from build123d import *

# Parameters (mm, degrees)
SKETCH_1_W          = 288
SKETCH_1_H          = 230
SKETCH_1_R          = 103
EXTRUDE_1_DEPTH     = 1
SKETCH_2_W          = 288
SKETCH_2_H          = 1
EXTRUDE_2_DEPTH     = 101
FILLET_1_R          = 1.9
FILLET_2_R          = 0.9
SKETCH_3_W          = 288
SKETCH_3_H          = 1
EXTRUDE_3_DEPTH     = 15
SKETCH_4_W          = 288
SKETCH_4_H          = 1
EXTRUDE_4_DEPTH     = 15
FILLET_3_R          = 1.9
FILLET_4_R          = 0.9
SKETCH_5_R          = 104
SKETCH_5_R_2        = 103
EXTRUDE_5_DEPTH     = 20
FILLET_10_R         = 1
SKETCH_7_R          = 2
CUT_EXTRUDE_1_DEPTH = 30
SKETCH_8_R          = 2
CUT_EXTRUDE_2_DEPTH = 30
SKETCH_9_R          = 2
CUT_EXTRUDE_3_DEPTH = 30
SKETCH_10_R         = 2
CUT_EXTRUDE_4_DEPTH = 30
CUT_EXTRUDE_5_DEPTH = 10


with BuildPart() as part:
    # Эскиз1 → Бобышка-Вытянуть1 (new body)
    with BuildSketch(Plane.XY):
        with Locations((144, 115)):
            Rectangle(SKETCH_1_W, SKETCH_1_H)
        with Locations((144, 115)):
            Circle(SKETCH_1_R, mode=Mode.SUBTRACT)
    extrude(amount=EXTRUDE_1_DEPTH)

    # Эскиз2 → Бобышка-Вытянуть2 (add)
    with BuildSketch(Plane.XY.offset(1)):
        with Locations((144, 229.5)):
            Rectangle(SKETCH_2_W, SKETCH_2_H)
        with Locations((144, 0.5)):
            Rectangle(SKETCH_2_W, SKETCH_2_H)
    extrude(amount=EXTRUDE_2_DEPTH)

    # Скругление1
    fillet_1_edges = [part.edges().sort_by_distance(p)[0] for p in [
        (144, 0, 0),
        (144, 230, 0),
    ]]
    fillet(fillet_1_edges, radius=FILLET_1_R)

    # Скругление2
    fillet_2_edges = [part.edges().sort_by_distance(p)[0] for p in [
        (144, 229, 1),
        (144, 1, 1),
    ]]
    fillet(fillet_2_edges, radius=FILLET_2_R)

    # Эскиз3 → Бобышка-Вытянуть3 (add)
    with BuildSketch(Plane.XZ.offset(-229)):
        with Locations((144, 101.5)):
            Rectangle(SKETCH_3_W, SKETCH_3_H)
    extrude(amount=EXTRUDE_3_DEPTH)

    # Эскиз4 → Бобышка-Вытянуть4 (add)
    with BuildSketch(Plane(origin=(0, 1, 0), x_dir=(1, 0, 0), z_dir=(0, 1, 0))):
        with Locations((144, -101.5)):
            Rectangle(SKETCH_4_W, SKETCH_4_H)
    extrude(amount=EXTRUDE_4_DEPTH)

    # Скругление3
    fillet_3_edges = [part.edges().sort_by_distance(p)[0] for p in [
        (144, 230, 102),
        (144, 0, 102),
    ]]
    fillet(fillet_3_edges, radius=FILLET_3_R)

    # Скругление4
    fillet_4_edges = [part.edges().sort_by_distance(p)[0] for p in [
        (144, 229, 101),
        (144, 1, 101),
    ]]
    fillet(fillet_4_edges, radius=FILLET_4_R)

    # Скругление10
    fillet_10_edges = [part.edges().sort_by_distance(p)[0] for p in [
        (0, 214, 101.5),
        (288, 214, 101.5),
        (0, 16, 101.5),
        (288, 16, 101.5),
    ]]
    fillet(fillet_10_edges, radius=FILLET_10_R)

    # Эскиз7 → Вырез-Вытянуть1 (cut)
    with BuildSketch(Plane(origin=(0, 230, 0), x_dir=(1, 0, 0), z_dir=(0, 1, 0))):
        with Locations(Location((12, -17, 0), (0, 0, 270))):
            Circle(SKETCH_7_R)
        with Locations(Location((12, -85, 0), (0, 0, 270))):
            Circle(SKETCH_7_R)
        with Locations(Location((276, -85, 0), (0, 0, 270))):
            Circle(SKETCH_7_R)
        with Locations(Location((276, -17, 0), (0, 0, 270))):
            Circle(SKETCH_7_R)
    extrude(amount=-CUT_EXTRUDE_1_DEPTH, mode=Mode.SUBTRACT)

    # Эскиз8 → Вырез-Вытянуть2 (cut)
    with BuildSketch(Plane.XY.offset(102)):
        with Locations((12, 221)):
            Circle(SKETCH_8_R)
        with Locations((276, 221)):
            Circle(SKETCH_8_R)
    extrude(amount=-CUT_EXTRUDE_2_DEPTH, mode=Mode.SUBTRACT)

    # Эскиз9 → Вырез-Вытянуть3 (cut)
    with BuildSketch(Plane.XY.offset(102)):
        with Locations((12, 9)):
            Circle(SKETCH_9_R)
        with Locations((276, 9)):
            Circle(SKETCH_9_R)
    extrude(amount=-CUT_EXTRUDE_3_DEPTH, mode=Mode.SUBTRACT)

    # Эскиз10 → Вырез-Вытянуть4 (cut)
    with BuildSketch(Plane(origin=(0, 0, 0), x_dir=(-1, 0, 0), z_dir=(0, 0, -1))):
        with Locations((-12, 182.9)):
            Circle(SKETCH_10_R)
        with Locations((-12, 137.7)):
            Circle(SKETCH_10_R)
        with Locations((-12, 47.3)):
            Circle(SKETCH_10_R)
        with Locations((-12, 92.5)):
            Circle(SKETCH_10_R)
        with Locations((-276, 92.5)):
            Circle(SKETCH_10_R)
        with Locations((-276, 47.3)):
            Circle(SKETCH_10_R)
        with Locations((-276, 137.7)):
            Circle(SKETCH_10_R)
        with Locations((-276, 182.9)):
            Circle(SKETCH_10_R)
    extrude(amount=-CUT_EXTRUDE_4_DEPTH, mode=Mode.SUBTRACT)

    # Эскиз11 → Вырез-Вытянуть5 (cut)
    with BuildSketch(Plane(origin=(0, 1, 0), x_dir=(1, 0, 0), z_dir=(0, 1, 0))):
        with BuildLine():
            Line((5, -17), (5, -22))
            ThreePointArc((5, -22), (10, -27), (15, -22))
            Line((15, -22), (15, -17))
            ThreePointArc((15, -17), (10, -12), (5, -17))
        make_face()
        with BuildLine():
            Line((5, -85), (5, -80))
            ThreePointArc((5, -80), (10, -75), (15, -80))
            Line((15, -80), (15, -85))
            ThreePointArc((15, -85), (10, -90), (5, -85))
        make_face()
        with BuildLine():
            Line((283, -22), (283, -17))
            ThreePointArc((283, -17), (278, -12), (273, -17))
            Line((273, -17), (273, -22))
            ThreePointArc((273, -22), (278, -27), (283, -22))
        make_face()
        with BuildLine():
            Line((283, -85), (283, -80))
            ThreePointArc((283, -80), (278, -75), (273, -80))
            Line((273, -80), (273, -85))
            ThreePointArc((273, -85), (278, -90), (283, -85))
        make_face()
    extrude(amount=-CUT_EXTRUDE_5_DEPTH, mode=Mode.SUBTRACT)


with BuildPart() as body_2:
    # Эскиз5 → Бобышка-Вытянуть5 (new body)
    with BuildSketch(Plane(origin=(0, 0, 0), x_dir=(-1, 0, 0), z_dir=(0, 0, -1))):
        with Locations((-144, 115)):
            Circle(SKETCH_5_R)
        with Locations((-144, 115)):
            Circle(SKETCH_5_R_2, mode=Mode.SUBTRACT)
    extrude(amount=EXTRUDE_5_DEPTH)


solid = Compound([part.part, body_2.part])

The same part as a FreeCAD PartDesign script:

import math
import FreeCAD as App
import Part
import Sketcher
from FreeCAD import Vector
Q = App.Units.Quantity


def edges_at(feature, points):
    """Names of the edges that pass closest to the given points."""
    edges = feature.Shape.Edges
    near = lambda p: min(range(len(edges)), key=lambda i: edges[i].distToShape(Part.Vertex(*p))[0])
    return sorted({f"Edge{near(p) + 1}" for p in points})

doc = App.newDocument("Part")
body = doc.addObject("PartDesign::Body", "Body")

# Sketch on XY plane
sketch1 = body.newObject("Sketcher::SketchObject", "Sketch")
sketch1.AttachmentSupport = (doc.getObject("XY_Plane"), [""])
sketch1.MapMode = "FlatFace"
sketch1.addGeometry(Part.LineSegment(Vector(0, 230, 0), Vector(0, 0, 0)), False)
sketch1.addGeometry(Part.LineSegment(Vector(0, 0, 0), Vector(288, 0, 0)), False)
sketch1.addGeometry(Part.LineSegment(Vector(288, 0, 0), Vector(288, 230, 0)), False)
sketch1.addGeometry(Part.LineSegment(Vector(288, 230, 0), Vector(0, 230, 0)), False)
sketch1.addGeometry(Part.Circle(Vector(144, 115, 0), Vector(0, 0, 1), 103), False)
sketch1.addConstraint(Sketcher.Constraint("Coincident", 0, 2, 1, 1))
sketch1.addConstraint(Sketcher.Constraint("Coincident", 1, 2, 2, 1))
sketch1.addConstraint(Sketcher.Constraint("Coincident", 2, 2, 3, 1))
sketch1.addConstraint(Sketcher.Constraint("Coincident", 3, 2, 0, 1))
sketch1.addConstraint(Sketcher.Constraint("Vertical", 0))
sketch1.addConstraint(Sketcher.Constraint("Horizontal", 1))
sketch1.addConstraint(Sketcher.Constraint("Vertical", 2))
sketch1.addConstraint(Sketcher.Constraint("Horizontal", 3))
sketch1.addConstraint(Sketcher.Constraint("Coincident", 0, 2, -1, 1))
sketch1.addConstraint(Sketcher.Constraint("Diameter", 4, Q("206 mm")))
sketch1.addConstraint(Sketcher.Constraint("DistanceX", 1, 1, 1, 2, Q("288 mm")))
sketch1.addConstraint(Sketcher.Constraint("DistanceY", 0, 2, 0, 1, Q("230 mm")))
sketch1.addConstraint(Sketcher.Constraint("DistanceX", -1, 1, 4, 3, Q("144 mm")))
sketch1.addConstraint(Sketcher.Constraint("DistanceY", -1, 1, 4, 3, Q("115 mm")))
pad1 = body.newObject("PartDesign::Pad", "Pad")
pad1.Profile = sketch1
pad1.Length = 1

# Sketch on XY plane
sketch2 = body.newObject("Sketcher::SketchObject", "Sketch001")
sketch2.AttachmentSupport = (doc.getObject("XY_Plane"), [""])
sketch2.MapMode = "FlatFace"
sketch2.AttachmentOffset = App.Placement(Vector(0, 0, 1), App.Rotation())
sketch2.addGeometry(Part.LineSegment(Vector(0, 230, 0), Vector(0, 229, 0)), False)
sketch2.addGeometry(Part.LineSegment(Vector(0, 229, 0), Vector(288, 229, 0)), False)
sketch2.addGeometry(Part.LineSegment(Vector(288, 229, 0), Vector(288, 230, 0)), False)
sketch2.addGeometry(Part.LineSegment(Vector(288, 230, 0), Vector(0, 230, 0)), False)
sketch2.addGeometry(Part.LineSegment(Vector(0, 1, 0), Vector(0, 0, 0)), False)
sketch2.addGeometry(Part.LineSegment(Vector(0, 0, 0), Vector(288, 0, 0)), False)
sketch2.addGeometry(Part.LineSegment(Vector(288, 0, 0), Vector(288, 1, 0)), False)
sketch2.addGeometry(Part.LineSegment(Vector(288, 1, 0), Vector(0, 1, 0)), False)
sketch2.addConstraint(Sketcher.Constraint("Coincident", 0, 2, 1, 1))
sketch2.addConstraint(Sketcher.Constraint("Coincident", 1, 2, 2, 1))
sketch2.addConstraint(Sketcher.Constraint("Coincident", 2, 2, 3, 1))
sketch2.addConstraint(Sketcher.Constraint("Coincident", 3, 2, 0, 1))
sketch2.addConstraint(Sketcher.Constraint("Coincident", 4, 2, 5, 1))
sketch2.addConstraint(Sketcher.Constraint("Coincident", 5, 2, 6, 1))
sketch2.addConstraint(Sketcher.Constraint("Coincident", 6, 2, 7, 1))
sketch2.addConstraint(Sketcher.Constraint("Coincident", 7, 2, 4, 1))
sketch2.addConstraint(Sketcher.Constraint("Vertical", 0))
sketch2.addConstraint(Sketcher.Constraint("Horizontal", 1))
sketch2.addConstraint(Sketcher.Constraint("Vertical", 2))
sketch2.addConstraint(Sketcher.Constraint("Horizontal", 3))
sketch2.addConstraint(Sketcher.Constraint("Vertical", 4))
sketch2.addConstraint(Sketcher.Constraint("Horizontal", 5))
sketch2.addConstraint(Sketcher.Constraint("Vertical", 6))
sketch2.addConstraint(Sketcher.Constraint("Horizontal", 7))
sketch2.addConstraint(Sketcher.Constraint("Coincident", 4, 2, -1, 1))
sketch2.addConstraint(Sketcher.Constraint("PointOnObject", 0, 2, -2))
sketch2.addConstraint(Sketcher.Constraint("Vertical", 2, 2, 5, 2))
sketch2.addConstraint(Sketcher.Constraint("Equal", 2, 4))
sketch2.addConstraint(Sketcher.Constraint("DistanceX", 1, 1, 1, 2, Q("288 mm")))
sketch2.addConstraint(Sketcher.Constraint("DistanceY", 0, 2, 0, 1, Q("1 mm")))
sketch2.addConstraint(Sketcher.Constraint("DistanceY", -1, 1, 0, 2, Q("229 mm")))
pad2 = body.newObject("PartDesign::Pad", "Pad001")
pad2.Profile = sketch2
pad2.Length = 101
doc.recompute()

fillet = body.newObject("PartDesign::Fillet", "Fillet")
fillet.Base = (pad2, edges_at(pad2, [(144, 0, 0), (144, 230, 0)]))
fillet.Radius = 1.9
doc.recompute()

fillet2 = body.newObject("PartDesign::Fillet", "Fillet001")
fillet2.Base = (fillet, edges_at(fillet, [(144, 229, 1), (144, 1, 1)]))
fillet2.Radius = 0.9

# Sketch on XZ plane
sketch3 = body.newObject("Sketcher::SketchObject", "Sketch002")
sketch3.AttachmentSupport = (doc.getObject("XZ_Plane"), [""])
sketch3.MapMode = "FlatFace"
sketch3.AttachmentOffset = App.Placement(Vector(0, 0, -229), App.Rotation())
sketch3.addGeometry(Part.LineSegment(Vector(0, 102, 0), Vector(0, 101, 0)), False)
sketch3.addGeometry(Part.LineSegment(Vector(0, 101, 0), Vector(288, 101, 0)), False)
sketch3.addGeometry(Part.LineSegment(Vector(288, 101, 0), Vector(288, 102, 0)), False)
sketch3.addGeometry(Part.LineSegment(Vector(288, 102, 0), Vector(0, 102, 0)), False)
sketch3.addConstraint(Sketcher.Constraint("Coincident", 0, 2, 1, 1))
sketch3.addConstraint(Sketcher.Constraint("Coincident", 1, 2, 2, 1))
sketch3.addConstraint(Sketcher.Constraint("Coincident", 2, 2, 3, 1))
sketch3.addConstraint(Sketcher.Constraint("Coincident", 3, 2, 0, 1))
sketch3.addConstraint(Sketcher.Constraint("Vertical", 0))
sketch3.addConstraint(Sketcher.Constraint("Horizontal", 1))
sketch3.addConstraint(Sketcher.Constraint("Vertical", 2))
sketch3.addConstraint(Sketcher.Constraint("Horizontal", 3))
sketch3.addConstraint(Sketcher.Constraint("PointOnObject", 0, 2, -2))
sketch3.addConstraint(Sketcher.Constraint("DistanceX", 1, 1, 1, 2, Q("288 mm")))
sketch3.addConstraint(Sketcher.Constraint("DistanceY", 0, 2, 0, 1, Q("1 mm")))
sketch3.addConstraint(Sketcher.Constraint("DistanceY", -1, 1, 0, 2, Q("101 mm")))
pad3 = body.newObject("PartDesign::Pad", "Pad002")
pad3.Profile = sketch3
pad3.Length = 15

# Sketch on XZ plane
sketch4 = body.newObject("Sketcher::SketchObject", "Sketch003")
sketch4.AttachmentSupport = (doc.getObject("XZ_Plane"), [""])
sketch4.MapMode = "FlatFace"
sketch4.AttachmentOffset = App.Placement(Vector(0, 0, -1), App.Rotation())
sketch4.addGeometry(Part.LineSegment(Vector(0, 101, 0), Vector(0, 102, 0)), False)
sketch4.addGeometry(Part.LineSegment(Vector(0, 102, 0), Vector(288, 102, 0)), False)
sketch4.addGeometry(Part.LineSegment(Vector(288, 102, 0), Vector(288, 101, 0)), False)
sketch4.addGeometry(Part.LineSegment(Vector(288, 101, 0), Vector(0, 101, 0)), False)
sketch4.addConstraint(Sketcher.Constraint("Coincident", 0, 2, 1, 1))
sketch4.addConstraint(Sketcher.Constraint("Coincident", 1, 2, 2, 1))
sketch4.addConstraint(Sketcher.Constraint("Coincident", 2, 2, 3, 1))
sketch4.addConstraint(Sketcher.Constraint("Coincident", 3, 2, 0, 1))
sketch4.addConstraint(Sketcher.Constraint("Vertical", 0))
sketch4.addConstraint(Sketcher.Constraint("Horizontal", 1))
sketch4.addConstraint(Sketcher.Constraint("Vertical", 2))
sketch4.addConstraint(Sketcher.Constraint("Horizontal", 3))
sketch4.addConstraint(Sketcher.Constraint("PointOnObject", 0, 2, -2))
sketch4.addConstraint(Sketcher.Constraint("DistanceX", 1, 1, 1, 2, Q("288 mm")))
sketch4.addConstraint(Sketcher.Constraint("DistanceY", 0, 1, 0, 2, Q("1 mm")))
sketch4.addConstraint(Sketcher.Constraint("DistanceY", -1, 1, 0, 2, Q("102 mm")))
pad4 = body.newObject("PartDesign::Pad", "Pad003")
pad4.Profile = sketch4
pad4.Length = 15
pad4.Reversed = True
doc.recompute()

fillet3 = body.newObject("PartDesign::Fillet", "Fillet002")
fillet3.Base = (pad4, edges_at(pad4, [(144, 230, 102), (144, 0, 102)]))
fillet3.Radius = 1.9
doc.recompute()

fillet4 = body.newObject("PartDesign::Fillet", "Fillet003")
fillet4.Base = (fillet3, edges_at(fillet3, [(144, 229, 101), (144, 1, 101)]))
fillet4.Radius = 0.9
doc.recompute()

fillet5 = body.newObject("PartDesign::Fillet", "Fillet004")
fillet5.Base = (fillet4, edges_at(fillet4, [
    (0, 214, 101.5),
    (288, 214, 101.5),
    (0, 16, 101.5),
    (288, 16, 101.5),
]))
fillet5.Radius = 1

# Sketch on XZ plane
sketch5 = body.newObject("Sketcher::SketchObject", "Sketch004")
sketch5.AttachmentSupport = (doc.getObject("XZ_Plane"), [""])
sketch5.MapMode = "FlatFace"
sketch5.AttachmentOffset = App.Placement(Vector(0, 0, -230), App.Rotation())
sketch5.addGeometry(Part.Circle(Vector(12, 17, 0), Vector(0, 0, 1), 2), False)
sketch5.addGeometry(Part.Circle(Vector(12, 85, 0), Vector(0, 0, 1), 2), False)
sketch5.addGeometry(Part.Circle(Vector(276, 85, 0), Vector(0, 0, 1), 2), False)
sketch5.addGeometry(Part.Circle(Vector(276, 17, 0), Vector(0, 0, 1), 2), False)
sketch5.addConstraint(Sketcher.Constraint("Equal", 0, 1))
sketch5.addConstraint(Sketcher.Constraint("Equal", 1, 2))
sketch5.addConstraint(Sketcher.Constraint("Equal", 2, 3))
sketch5.addConstraint(Sketcher.Constraint("Horizontal", 1, 3, 2, 3))
sketch5.addConstraint(Sketcher.Constraint("Horizontal", 0, 3, 3, 3))
sketch5.addConstraint(Sketcher.Constraint("Vertical", 0, 3, 1, 3))
sketch5.addConstraint(Sketcher.Constraint("Vertical", 2, 3, 3, 3))
sketch5.addConstraint(Sketcher.Constraint("Diameter", 0, Q("4 mm")))
sketch5.addConstraint(Sketcher.Constraint("DistanceX", -1, 1, 0, 3, Q("12 mm")))
sketch5.addConstraint(Sketcher.Constraint("DistanceY", -1, 1, 0, 3, Q("17 mm")))
sketch5.addConstraint(Sketcher.Constraint("DistanceY", -1, 1, 1, 3, Q("85 mm")))
sketch5.addConstraint(Sketcher.Constraint("DistanceX", -1, 1, 2, 3, Q("276 mm")))
pocket1 = body.newObject("PartDesign::Pocket", "Pocket")
pocket1.Profile = sketch5
pocket1.Length = 30
pocket1.Reversed = True

# Sketch on XY plane
sketch6 = body.newObject("Sketcher::SketchObject", "Sketch005")
sketch6.AttachmentSupport = (doc.getObject("XY_Plane"), [""])
sketch6.MapMode = "FlatFace"
sketch6.AttachmentOffset = App.Placement(Vector(0, 0, 102), App.Rotation())
sketch6.addGeometry(Part.Circle(Vector(12, 221, 0), Vector(0, 0, 1), 2), False)
sketch6.addGeometry(Part.Circle(Vector(276, 221, 0), Vector(0, 0, 1), 2), False)
sketch6.addConstraint(Sketcher.Constraint("Equal", 0, 1))
sketch6.addConstraint(Sketcher.Constraint("Horizontal", 0, 3, 1, 3))
sketch6.addConstraint(Sketcher.Constraint("Diameter", 0, Q("4 mm")))
sketch6.addConstraint(Sketcher.Constraint("DistanceX", -1, 1, 0, 3, Q("12 mm")))
sketch6.addConstraint(Sketcher.Constraint("DistanceY", -1, 1, 0, 3, Q("221 mm")))
sketch6.addConstraint(Sketcher.Constraint("DistanceX", -1, 1, 1, 3, Q("276 mm")))
pocket2 = body.newObject("PartDesign::Pocket", "Pocket001")
pocket2.Profile = sketch6
pocket2.Length = 30

# Sketch on XY plane
sketch7 = body.newObject("Sketcher::SketchObject", "Sketch006")
sketch7.AttachmentSupport = (doc.getObject("XY_Plane"), [""])
sketch7.MapMode = "FlatFace"
sketch7.AttachmentOffset = App.Placement(Vector(0, 0, 102), App.Rotation())
sketch7.addGeometry(Part.Circle(Vector(12, 9, 0), Vector(0, 0, 1), 2), False)
sketch7.addGeometry(Part.Circle(Vector(276, 9, 0), Vector(0, 0, 1), 2), False)
sketch7.addConstraint(Sketcher.Constraint("Equal", 0, 1))
sketch7.addConstraint(Sketcher.Constraint("Horizontal", 0, 3, 1, 3))
sketch7.addConstraint(Sketcher.Constraint("Diameter", 0, Q("4 mm")))
sketch7.addConstraint(Sketcher.Constraint("DistanceX", -1, 1, 0, 3, Q("12 mm")))
sketch7.addConstraint(Sketcher.Constraint("DistanceY", -1, 1, 0, 3, Q("9 mm")))
sketch7.addConstraint(Sketcher.Constraint("DistanceX", -1, 1, 1, 3, Q("276 mm")))
pocket3 = body.newObject("PartDesign::Pocket", "Pocket002")
pocket3.Profile = sketch7
pocket3.Length = 30

# Sketch on XY plane
sketch8 = body.newObject("Sketcher::SketchObject", "Sketch007")
sketch8.AttachmentSupport = (doc.getObject("XY_Plane"), [""])
sketch8.MapMode = "FlatFace"
sketch8.addGeometry(Part.Circle(Vector(12, 182.9, 0), Vector(0, 0, 1), 2), False)
sketch8.addGeometry(Part.Circle(Vector(12, 137.7, 0), Vector(0, 0, 1), 2), False)
sketch8.addGeometry(Part.Circle(Vector(12, 47.3, 0), Vector(0, 0, 1), 2), False)
sketch8.addGeometry(Part.Circle(Vector(12, 92.5, 0), Vector(0, 0, 1), 2), False)
sketch8.addGeometry(Part.Circle(Vector(276, 92.5, 0), Vector(0, 0, 1), 2), False)
sketch8.addGeometry(Part.Circle(Vector(276, 47.3, 0), Vector(0, 0, 1), 2), False)
sketch8.addGeometry(Part.Circle(Vector(276, 137.7, 0), Vector(0, 0, 1), 2), False)
sketch8.addGeometry(Part.Circle(Vector(276, 182.9, 0), Vector(0, 0, 1), 2), False)
sketch8.addConstraint(Sketcher.Constraint("Equal", 0, 1))
sketch8.addConstraint(Sketcher.Constraint("Equal", 1, 2))
sketch8.addConstraint(Sketcher.Constraint("Equal", 2, 3))
sketch8.addConstraint(Sketcher.Constraint("Equal", 3, 4))
sketch8.addConstraint(Sketcher.Constraint("Equal", 4, 5))
sketch8.addConstraint(Sketcher.Constraint("Equal", 5, 6))
sketch8.addConstraint(Sketcher.Constraint("Equal", 6, 7))
sketch8.addConstraint(Sketcher.Constraint("Horizontal", 3, 3, 4, 3))
sketch8.addConstraint(Sketcher.Constraint("Horizontal", 2, 3, 5, 3))
sketch8.addConstraint(Sketcher.Constraint("Horizontal", 1, 3, 6, 3))
sketch8.addConstraint(Sketcher.Constraint("Horizontal", 0, 3, 7, 3))
sketch8.addConstraint(Sketcher.Constraint("Vertical", 0, 3, 1, 3))
sketch8.addConstraint(Sketcher.Constraint("Vertical", 1, 3, 2, 3))
sketch8.addConstraint(Sketcher.Constraint("Vertical", 2, 3, 3, 3))
sketch8.addConstraint(Sketcher.Constraint("Vertical", 4, 3, 5, 3))
sketch8.addConstraint(Sketcher.Constraint("Vertical", 5, 3, 6, 3))
sketch8.addConstraint(Sketcher.Constraint("Vertical", 6, 3, 7, 3))
sketch8.addConstraint(Sketcher.Constraint("Diameter", 0, Q("4 mm")))
sketch8.addConstraint(Sketcher.Constraint("DistanceX", -1, 1, 0, 3, Q("12 mm")))
sketch8.addConstraint(Sketcher.Constraint("DistanceX", -1, 1, 4, 3, Q("276 mm")))
sketch8.addConstraint(Sketcher.Constraint("DistanceY", -1, 1, 0, 3, Q("182.9 mm")))
sketch8.addConstraint(Sketcher.Constraint("DistanceY", -1, 1, 1, 3, Q("137.7 mm")))
sketch8.addConstraint(Sketcher.Constraint("DistanceY", -1, 1, 2, 3, Q("47.3 mm")))
sketch8.addConstraint(Sketcher.Constraint("DistanceY", -1, 1, 3, 3, Q("92.5 mm")))
pocket4 = body.newObject("PartDesign::Pocket", "Pocket003")
pocket4.Profile = sketch8
pocket4.Length = 30
pocket4.Reversed = True

# Sketch on XZ plane
sketch9 = body.newObject("Sketcher::SketchObject", "Sketch008")
sketch9.AttachmentSupport = (doc.getObject("XZ_Plane"), [""])
sketch9.MapMode = "FlatFace"
sketch9.AttachmentOffset = App.Placement(Vector(0, 0, -1), App.Rotation())
sketch9.addGeometry(Part.LineSegment(Vector(5, 17, 0), Vector(5, 22, 0)), False)
sketch9.addGeometry(Part.ArcOfCircle(Part.Circle(Vector(10, 22, 0), Vector(0, 0, 1), 5), math.radians(0), math.radians(180)), False)
sketch9.addGeometry(Part.LineSegment(Vector(15, 22, 0), Vector(15, 17, 0)), False)
sketch9.addGeometry(Part.ArcOfCircle(Part.Circle(Vector(10, 17, 0), Vector(0, 0, 1), 5), math.radians(180), math.radians(360)), False)
sketch9.addGeometry(Part.LineSegment(Vector(5, 80, 0), Vector(5, 85, 0)), False)
sketch9.addGeometry(Part.ArcOfCircle(Part.Circle(Vector(10, 85, 0), Vector(0, 0, 1), 5), math.radians(0), math.radians(180)), False)
sketch9.addGeometry(Part.LineSegment(Vector(15, 85, 0), Vector(15, 80, 0)), False)
sketch9.addGeometry(Part.ArcOfCircle(Part.Circle(Vector(10, 80, 0), Vector(0, 0, 1), 5), math.radians(180), math.radians(360)), False)
sketch9.addGeometry(Part.LineSegment(Vector(283, 22, 0), Vector(283, 17, 0)), False)
sketch9.addGeometry(Part.ArcOfCircle(Part.Circle(Vector(278, 17, 0), Vector(0, 0, 1), 5), math.radians(180), math.radians(360)), False)
sketch9.addGeometry(Part.LineSegment(Vector(273, 17, 0), Vector(273, 22, 0)), False)
sketch9.addGeometry(Part.ArcOfCircle(Part.Circle(Vector(278, 22, 0), Vector(0, 0, 1), 5), math.radians(0), math.radians(180)), False)
sketch9.addGeometry(Part.LineSegment(Vector(283, 85, 0), Vector(283, 80, 0)), False)
sketch9.addGeometry(Part.ArcOfCircle(Part.Circle(Vector(278, 80, 0), Vector(0, 0, 1), 5), math.radians(180), math.radians(360)), False)
sketch9.addGeometry(Part.LineSegment(Vector(273, 80, 0), Vector(273, 85, 0)), False)
sketch9.addGeometry(Part.ArcOfCircle(Part.Circle(Vector(278, 85, 0), Vector(0, 0, 1), 5), math.radians(0), math.radians(180)), False)
sketch9.addConstraint(Sketcher.Constraint("Tangent", 0, 2, 1, 2))
sketch9.addConstraint(Sketcher.Constraint("Tangent", 1, 1, 2, 1))
sketch9.addConstraint(Sketcher.Constraint("Tangent", 2, 2, 3, 2))
sketch9.addConstraint(Sketcher.Constraint("Tangent", 3, 1, 0, 1))
sketch9.addConstraint(Sketcher.Constraint("Tangent", 4, 2, 5, 2))
sketch9.addConstraint(Sketcher.Constraint("Tangent", 5, 1, 6, 1))
sketch9.addConstraint(Sketcher.Constraint("Tangent", 6, 2, 7, 2))
sketch9.addConstraint(Sketcher.Constraint("Tangent", 7, 1, 4, 1))
sketch9.addConstraint(Sketcher.Constraint("Tangent", 8, 2, 9, 2))
sketch9.addConstraint(Sketcher.Constraint("Tangent", 9, 1, 10, 1))
sketch9.addConstraint(Sketcher.Constraint("Tangent", 10, 2, 11, 2))
sketch9.addConstraint(Sketcher.Constraint("Tangent", 11, 1, 8, 1))
sketch9.addConstraint(Sketcher.Constraint("Tangent", 12, 2, 13, 2))
sketch9.addConstraint(Sketcher.Constraint("Tangent", 13, 1, 14, 1))
sketch9.addConstraint(Sketcher.Constraint("Tangent", 14, 2, 15, 2))
sketch9.addConstraint(Sketcher.Constraint("Tangent", 15, 1, 12, 1))
sketch9.addConstraint(Sketcher.Constraint("Vertical", 0))
sketch9.addConstraint(Sketcher.Constraint("Vertical", 2))
sketch9.addConstraint(Sketcher.Constraint("Vertical", 4))
sketch9.addConstraint(Sketcher.Constraint("Vertical", 6))
sketch9.addConstraint(Sketcher.Constraint("Vertical", 8))
sketch9.addConstraint(Sketcher.Constraint("Vertical", 10))
sketch9.addConstraint(Sketcher.Constraint("Vertical", 12))
sketch9.addConstraint(Sketcher.Constraint("Vertical", 14))
sketch9.addConstraint(Sketcher.Constraint("Equal", 3, 5))
sketch9.addConstraint(Sketcher.Constraint("Equal", 7, 9))
sketch9.addConstraint(Sketcher.Constraint("Equal", 11, 13))
sketch9.addConstraint(Sketcher.Constraint("Horizontal", 3, 3, 9, 3))
sketch9.addConstraint(Sketcher.Constraint("Horizontal", 1, 3, 11, 3))
sketch9.addConstraint(Sketcher.Constraint("Horizontal", 7, 3, 13, 3))
sketch9.addConstraint(Sketcher.Constraint("Horizontal", 5, 3, 15, 3))
sketch9.addConstraint(Sketcher.Constraint("Vertical", 3, 3, 5, 3))
sketch9.addConstraint(Sketcher.Constraint("Vertical", 11, 3, 13, 3))
sketch9.addConstraint(Sketcher.Constraint("Equal", 2, 4))
sketch9.addConstraint(Sketcher.Constraint("Radius", 1, Q("5 mm")))
sketch9.addConstraint(Sketcher.Constraint("DistanceY", 0, 1, 0, 2, Q("5 mm")))
sketch9.addConstraint(Sketcher.Constraint("DistanceX", -1, 1, 1, 3, Q("10 mm")))
sketch9.addConstraint(Sketcher.Constraint("DistanceY", -1, 1, 1, 3, Q("22 mm")))
sketch9.addConstraint(Sketcher.Constraint("DistanceY", -1, 1, 5, 3, Q("85 mm")))
sketch9.addConstraint(Sketcher.Constraint("DistanceX", -1, 1, 9, 3, Q("278 mm")))
pocket5 = body.newObject("PartDesign::Pocket", "Pocket004")
pocket5.Profile = sketch9
pocket5.Length = 10
pocket5.Reversed = True
body2 = doc.addObject("PartDesign::Body", "Body001")

# Sketch on XY plane
sketch10 = body2.newObject("Sketcher::SketchObject", "Sketch009")
sketch10.AttachmentSupport = (doc.getObject("XY_Plane001"), [""])
sketch10.MapMode = "FlatFace"
sketch10.addGeometry(Part.Circle(Vector(144, 115, 0), Vector(0, 0, 1), 104), False)
sketch10.addGeometry(Part.Circle(Vector(144, 115, 0), Vector(0, 0, 1), 103), False)
sketch10.addConstraint(Sketcher.Constraint("Coincident", 1, 3, 0, 3))
sketch10.addConstraint(Sketcher.Constraint("Diameter", 0, Q("208 mm")))
sketch10.addConstraint(Sketcher.Constraint("Diameter", 1, Q("206 mm")))
sketch10.addConstraint(Sketcher.Constraint("DistanceX", -1, 1, 0, 3, Q("144 mm")))
sketch10.addConstraint(Sketcher.Constraint("DistanceY", -1, 1, 0, 3, Q("115 mm")))
pad5 = body2.newObject("PartDesign::Pad", "Pad004")
pad5.Profile = sketch10
pad5.Length = 20
pad5.Reversed = True

doc.recompute()
